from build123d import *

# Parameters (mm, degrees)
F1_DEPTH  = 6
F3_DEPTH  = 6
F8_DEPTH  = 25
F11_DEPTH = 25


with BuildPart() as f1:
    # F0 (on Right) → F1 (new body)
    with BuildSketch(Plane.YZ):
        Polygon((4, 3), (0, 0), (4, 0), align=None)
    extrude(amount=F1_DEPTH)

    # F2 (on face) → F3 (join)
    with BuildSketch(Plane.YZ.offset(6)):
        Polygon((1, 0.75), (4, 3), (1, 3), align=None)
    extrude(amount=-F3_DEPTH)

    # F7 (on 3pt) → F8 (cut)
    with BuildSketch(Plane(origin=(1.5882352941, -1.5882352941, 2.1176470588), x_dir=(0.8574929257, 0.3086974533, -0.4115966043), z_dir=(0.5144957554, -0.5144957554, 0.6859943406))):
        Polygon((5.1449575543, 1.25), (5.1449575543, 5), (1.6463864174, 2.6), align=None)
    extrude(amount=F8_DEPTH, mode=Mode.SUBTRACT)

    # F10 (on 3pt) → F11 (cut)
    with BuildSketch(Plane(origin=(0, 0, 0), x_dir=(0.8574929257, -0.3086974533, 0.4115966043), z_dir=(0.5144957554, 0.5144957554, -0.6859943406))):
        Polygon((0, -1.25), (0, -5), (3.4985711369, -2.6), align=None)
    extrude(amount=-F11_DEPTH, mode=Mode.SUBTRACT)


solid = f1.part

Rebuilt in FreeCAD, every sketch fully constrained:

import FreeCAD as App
import Part
import Sketcher


def add_polygon(sketch, points):
    """Adds a closed chain of lines whose ends are joined by coincident constraints."""
    first, n = sketch.GeometryCount, len(points)
    for a, b in zip(points, points[1:] + points[:1]):
        sketch.addGeometry(Part.LineSegment(App.Vector(*a, 0), App.Vector(*b, 0)), False)
    for i in range(n):
        sketch.addConstraint(Sketcher.Constraint("Coincident", first + i, 2, first + (i + 1) % n, 1))

doc = App.newDocument("Part")
params = doc.addObject("Spreadsheet::Sheet", "Params")
for row, (alias, value) in enumerate([
    ("sketch1_width", "4 mm"),
    ("sketch1_height", "3 mm"),
    ("pad1_length", "6 mm"),
    ("sketch2_width", "3 mm"),
    ("sketch2_height", "2.25 mm"),
    ("pad2_length", "6 mm"),
    ("sketch3_height", "3.75 mm"),
    ("sketch3_length", "3.75 mm"),
    ("pocket1_length", "25 mm"),
    ("sketch4_height", "3.75 mm"),
    ("sketch4_length", "3.75 mm"),
    ("pocket2_length", "25 mm"),
], start=1):
    params.set(f"A{row}", alias)
    params.set(f"B{row}", "=" + value)
    params.setAlias(f"B{row}", alias)

body = doc.addObject("PartDesign::Body", "Body")

# Sketch on YZ plane
sketch1 = body.newObject("Sketcher::SketchObject", "Sketch")
sketch1.AttachmentSupport = (doc.getObject("YZ_Plane"), [""])
sketch1.MapMode = "FlatFace"
add_polygon(sketch1, [(4, 3), (0, 0), (4, 0)])  # lines 0-2
sketch1.addConstraint(Sketcher.Constraint("Horizontal", 1))
sketch1.addConstraint(Sketcher.Constraint("Vertical", 2))
sketch1.addConstraint(Sketcher.Constraint("Coincident", 0, 2, -1, 1))
sketch1.addConstraint(Sketcher.Constraint("DistanceX", 1, 1, 1, 2, 4.0))
sketch1.addConstraint(Sketcher.Constraint("DistanceY", 2, 1, 2, 2, 3.0))
sketch1.setExpression("Constraints[6]", "Params.sketch1_width")
sketch1.setExpression("Constraints[7]", "Params.sketch1_height")
pad1 = body.newObject("PartDesign::Pad", "Pad")
pad1.Profile = sketch1
pad1.setExpression("Length", "Params.pad1_length")

# Sketch on YZ plane
sketch2 = body.newObject("Sketcher::SketchObject", "Sketch001")
sketch2.AttachmentSupport = (doc.getObject("YZ_Plane"), [""])
sketch2.MapMode = "FlatFace"
sketch2.AttachmentOffset = App.Placement(App.Vector(0, 0, 6), App.Rotation())
add_polygon(sketch2, [(1, 0.8), (4, 3), (1, 3)])  # lines 0-2
sketch2.addConstraint(Sketcher.Constraint("Horizontal", 1))
sketch2.addConstraint(Sketcher.Constraint("Vertical", 2))
sketch2.addConstraint(Sketcher.Constraint("DistanceX", 1, 2, 1, 1, 3.0))
sketch2.addConstraint(Sketcher.Constraint("DistanceX", -1, 1, 0, 2, 4.0))
sketch2.addConstraint(Sketcher.Constraint("DistanceY", -1, 1, 0, 2, 3.0))
sketch2.addConstraint(Sketcher.Constraint("DistanceY", 2, 2, 2, 1, 2.25))
sketch2.setExpression("Constraints[5]", "Params.sketch2_width")
sketch2.setExpression("Constraints[8]", "Params.sketch2_height")
pad2 = body.newObject("PartDesign::Pad", "Pad001")
pad2.Profile = sketch2
pad2.setExpression("Length", "Params.pad2_length")
pad2.Reversed = True

# Sketch on an angled plane
sketch3 = body.newObject("Sketcher::SketchObject", "Sketch002")
sketch3.Placement = App.Placement(App.Vector(1.588235, -1.588235, 2.117647), App.Rotation(App.Vector(0.857492926, 0.308697453, -0.411596604), App.Vector(0, 0.8, 0.6), App.Vector(0.514495755, -0.514495755, 0.685994341), "ZXY"))
add_polygon(sketch3, [(5.1, 1.2), (5.1, 5), (1.6, 2.6)])  # lines 0-2
sketch3.addConstraint(Sketcher.Constraint("Vertical", 0))
sketch3.addConstraint(Sketcher.Constraint("DistanceY", -1, 1, 0, 2, 5.0))
sketch3.addConstraint(Sketcher.Constraint("DistanceY", 0, 1, 0, 2, 3.75))
sketch3.addConstraint(Sketcher.Constraint("DistanceY", -1, 1, 1, 2, 2.6))
sketch3.addConstraint(Sketcher.Constraint("Distance", 2, 3.75))
sketch3.addConstraint(Sketcher.Constraint("DistanceX", -1, 1, 0, 2, 5.144958))
sketch3.setExpression("Constraints[5]", "Params.sketch3_height")
sketch3.setExpression("Constraints[7]", "Params.sketch3_length")
pocket1 = body.newObject("PartDesign::Pocket", "Pocket")
pocket1.Profile = sketch3
pocket1.setExpression("Length", "Params.pocket1_length")
pocket1.Reversed = True

# Sketch on an angled plane
sketch4 = body.newObject("Sketcher::SketchObject", "Sketch003")
sketch4.Placement = App.Placement(App.Vector(0, 0, 0), App.Rotation(App.Vector(0.857492926, -0.308697453, 0.411596604), App.Vector(0, -0.8, -0.6), App.Vector(0.514495755, 0.514495755, -0.685994341), "ZXY"))
add_polygon(sketch4, [(0, -1.2), (0, -5), (3.5, -2.6)])  # lines 0-2
sketch4.addConstraint(Sketcher.Constraint("Vertical", 0))
sketch4.addConstraint(Sketcher.Constraint("PointOnObject", 0, 2, -2))
sketch4.addConstraint(Sketcher.Constraint("DistanceY", 0, 2, -1, 1, 5.0))
sketch4.addConstraint(Sketcher.Constraint("DistanceY", 0, 2, 0, 1, 3.75))
sketch4.addConstraint(Sketcher.Constraint("DistanceY", 1, 2, -1, 1, 2.6))
sketch4.addConstraint(Sketcher.Constraint("Distance", 2, 3.75))
sketch4.setExpression("Constraints[6]", "Params.sketch4_height")
sketch4.setExpression("Constraints[8]", "Params.sketch4_length")
pocket2 = body.newObject("PartDesign::Pocket", "Pocket001")
pocket2.Profile = sketch4
pocket2.setExpression("Length", "Params.pocket2_length")

doc.recompute()
